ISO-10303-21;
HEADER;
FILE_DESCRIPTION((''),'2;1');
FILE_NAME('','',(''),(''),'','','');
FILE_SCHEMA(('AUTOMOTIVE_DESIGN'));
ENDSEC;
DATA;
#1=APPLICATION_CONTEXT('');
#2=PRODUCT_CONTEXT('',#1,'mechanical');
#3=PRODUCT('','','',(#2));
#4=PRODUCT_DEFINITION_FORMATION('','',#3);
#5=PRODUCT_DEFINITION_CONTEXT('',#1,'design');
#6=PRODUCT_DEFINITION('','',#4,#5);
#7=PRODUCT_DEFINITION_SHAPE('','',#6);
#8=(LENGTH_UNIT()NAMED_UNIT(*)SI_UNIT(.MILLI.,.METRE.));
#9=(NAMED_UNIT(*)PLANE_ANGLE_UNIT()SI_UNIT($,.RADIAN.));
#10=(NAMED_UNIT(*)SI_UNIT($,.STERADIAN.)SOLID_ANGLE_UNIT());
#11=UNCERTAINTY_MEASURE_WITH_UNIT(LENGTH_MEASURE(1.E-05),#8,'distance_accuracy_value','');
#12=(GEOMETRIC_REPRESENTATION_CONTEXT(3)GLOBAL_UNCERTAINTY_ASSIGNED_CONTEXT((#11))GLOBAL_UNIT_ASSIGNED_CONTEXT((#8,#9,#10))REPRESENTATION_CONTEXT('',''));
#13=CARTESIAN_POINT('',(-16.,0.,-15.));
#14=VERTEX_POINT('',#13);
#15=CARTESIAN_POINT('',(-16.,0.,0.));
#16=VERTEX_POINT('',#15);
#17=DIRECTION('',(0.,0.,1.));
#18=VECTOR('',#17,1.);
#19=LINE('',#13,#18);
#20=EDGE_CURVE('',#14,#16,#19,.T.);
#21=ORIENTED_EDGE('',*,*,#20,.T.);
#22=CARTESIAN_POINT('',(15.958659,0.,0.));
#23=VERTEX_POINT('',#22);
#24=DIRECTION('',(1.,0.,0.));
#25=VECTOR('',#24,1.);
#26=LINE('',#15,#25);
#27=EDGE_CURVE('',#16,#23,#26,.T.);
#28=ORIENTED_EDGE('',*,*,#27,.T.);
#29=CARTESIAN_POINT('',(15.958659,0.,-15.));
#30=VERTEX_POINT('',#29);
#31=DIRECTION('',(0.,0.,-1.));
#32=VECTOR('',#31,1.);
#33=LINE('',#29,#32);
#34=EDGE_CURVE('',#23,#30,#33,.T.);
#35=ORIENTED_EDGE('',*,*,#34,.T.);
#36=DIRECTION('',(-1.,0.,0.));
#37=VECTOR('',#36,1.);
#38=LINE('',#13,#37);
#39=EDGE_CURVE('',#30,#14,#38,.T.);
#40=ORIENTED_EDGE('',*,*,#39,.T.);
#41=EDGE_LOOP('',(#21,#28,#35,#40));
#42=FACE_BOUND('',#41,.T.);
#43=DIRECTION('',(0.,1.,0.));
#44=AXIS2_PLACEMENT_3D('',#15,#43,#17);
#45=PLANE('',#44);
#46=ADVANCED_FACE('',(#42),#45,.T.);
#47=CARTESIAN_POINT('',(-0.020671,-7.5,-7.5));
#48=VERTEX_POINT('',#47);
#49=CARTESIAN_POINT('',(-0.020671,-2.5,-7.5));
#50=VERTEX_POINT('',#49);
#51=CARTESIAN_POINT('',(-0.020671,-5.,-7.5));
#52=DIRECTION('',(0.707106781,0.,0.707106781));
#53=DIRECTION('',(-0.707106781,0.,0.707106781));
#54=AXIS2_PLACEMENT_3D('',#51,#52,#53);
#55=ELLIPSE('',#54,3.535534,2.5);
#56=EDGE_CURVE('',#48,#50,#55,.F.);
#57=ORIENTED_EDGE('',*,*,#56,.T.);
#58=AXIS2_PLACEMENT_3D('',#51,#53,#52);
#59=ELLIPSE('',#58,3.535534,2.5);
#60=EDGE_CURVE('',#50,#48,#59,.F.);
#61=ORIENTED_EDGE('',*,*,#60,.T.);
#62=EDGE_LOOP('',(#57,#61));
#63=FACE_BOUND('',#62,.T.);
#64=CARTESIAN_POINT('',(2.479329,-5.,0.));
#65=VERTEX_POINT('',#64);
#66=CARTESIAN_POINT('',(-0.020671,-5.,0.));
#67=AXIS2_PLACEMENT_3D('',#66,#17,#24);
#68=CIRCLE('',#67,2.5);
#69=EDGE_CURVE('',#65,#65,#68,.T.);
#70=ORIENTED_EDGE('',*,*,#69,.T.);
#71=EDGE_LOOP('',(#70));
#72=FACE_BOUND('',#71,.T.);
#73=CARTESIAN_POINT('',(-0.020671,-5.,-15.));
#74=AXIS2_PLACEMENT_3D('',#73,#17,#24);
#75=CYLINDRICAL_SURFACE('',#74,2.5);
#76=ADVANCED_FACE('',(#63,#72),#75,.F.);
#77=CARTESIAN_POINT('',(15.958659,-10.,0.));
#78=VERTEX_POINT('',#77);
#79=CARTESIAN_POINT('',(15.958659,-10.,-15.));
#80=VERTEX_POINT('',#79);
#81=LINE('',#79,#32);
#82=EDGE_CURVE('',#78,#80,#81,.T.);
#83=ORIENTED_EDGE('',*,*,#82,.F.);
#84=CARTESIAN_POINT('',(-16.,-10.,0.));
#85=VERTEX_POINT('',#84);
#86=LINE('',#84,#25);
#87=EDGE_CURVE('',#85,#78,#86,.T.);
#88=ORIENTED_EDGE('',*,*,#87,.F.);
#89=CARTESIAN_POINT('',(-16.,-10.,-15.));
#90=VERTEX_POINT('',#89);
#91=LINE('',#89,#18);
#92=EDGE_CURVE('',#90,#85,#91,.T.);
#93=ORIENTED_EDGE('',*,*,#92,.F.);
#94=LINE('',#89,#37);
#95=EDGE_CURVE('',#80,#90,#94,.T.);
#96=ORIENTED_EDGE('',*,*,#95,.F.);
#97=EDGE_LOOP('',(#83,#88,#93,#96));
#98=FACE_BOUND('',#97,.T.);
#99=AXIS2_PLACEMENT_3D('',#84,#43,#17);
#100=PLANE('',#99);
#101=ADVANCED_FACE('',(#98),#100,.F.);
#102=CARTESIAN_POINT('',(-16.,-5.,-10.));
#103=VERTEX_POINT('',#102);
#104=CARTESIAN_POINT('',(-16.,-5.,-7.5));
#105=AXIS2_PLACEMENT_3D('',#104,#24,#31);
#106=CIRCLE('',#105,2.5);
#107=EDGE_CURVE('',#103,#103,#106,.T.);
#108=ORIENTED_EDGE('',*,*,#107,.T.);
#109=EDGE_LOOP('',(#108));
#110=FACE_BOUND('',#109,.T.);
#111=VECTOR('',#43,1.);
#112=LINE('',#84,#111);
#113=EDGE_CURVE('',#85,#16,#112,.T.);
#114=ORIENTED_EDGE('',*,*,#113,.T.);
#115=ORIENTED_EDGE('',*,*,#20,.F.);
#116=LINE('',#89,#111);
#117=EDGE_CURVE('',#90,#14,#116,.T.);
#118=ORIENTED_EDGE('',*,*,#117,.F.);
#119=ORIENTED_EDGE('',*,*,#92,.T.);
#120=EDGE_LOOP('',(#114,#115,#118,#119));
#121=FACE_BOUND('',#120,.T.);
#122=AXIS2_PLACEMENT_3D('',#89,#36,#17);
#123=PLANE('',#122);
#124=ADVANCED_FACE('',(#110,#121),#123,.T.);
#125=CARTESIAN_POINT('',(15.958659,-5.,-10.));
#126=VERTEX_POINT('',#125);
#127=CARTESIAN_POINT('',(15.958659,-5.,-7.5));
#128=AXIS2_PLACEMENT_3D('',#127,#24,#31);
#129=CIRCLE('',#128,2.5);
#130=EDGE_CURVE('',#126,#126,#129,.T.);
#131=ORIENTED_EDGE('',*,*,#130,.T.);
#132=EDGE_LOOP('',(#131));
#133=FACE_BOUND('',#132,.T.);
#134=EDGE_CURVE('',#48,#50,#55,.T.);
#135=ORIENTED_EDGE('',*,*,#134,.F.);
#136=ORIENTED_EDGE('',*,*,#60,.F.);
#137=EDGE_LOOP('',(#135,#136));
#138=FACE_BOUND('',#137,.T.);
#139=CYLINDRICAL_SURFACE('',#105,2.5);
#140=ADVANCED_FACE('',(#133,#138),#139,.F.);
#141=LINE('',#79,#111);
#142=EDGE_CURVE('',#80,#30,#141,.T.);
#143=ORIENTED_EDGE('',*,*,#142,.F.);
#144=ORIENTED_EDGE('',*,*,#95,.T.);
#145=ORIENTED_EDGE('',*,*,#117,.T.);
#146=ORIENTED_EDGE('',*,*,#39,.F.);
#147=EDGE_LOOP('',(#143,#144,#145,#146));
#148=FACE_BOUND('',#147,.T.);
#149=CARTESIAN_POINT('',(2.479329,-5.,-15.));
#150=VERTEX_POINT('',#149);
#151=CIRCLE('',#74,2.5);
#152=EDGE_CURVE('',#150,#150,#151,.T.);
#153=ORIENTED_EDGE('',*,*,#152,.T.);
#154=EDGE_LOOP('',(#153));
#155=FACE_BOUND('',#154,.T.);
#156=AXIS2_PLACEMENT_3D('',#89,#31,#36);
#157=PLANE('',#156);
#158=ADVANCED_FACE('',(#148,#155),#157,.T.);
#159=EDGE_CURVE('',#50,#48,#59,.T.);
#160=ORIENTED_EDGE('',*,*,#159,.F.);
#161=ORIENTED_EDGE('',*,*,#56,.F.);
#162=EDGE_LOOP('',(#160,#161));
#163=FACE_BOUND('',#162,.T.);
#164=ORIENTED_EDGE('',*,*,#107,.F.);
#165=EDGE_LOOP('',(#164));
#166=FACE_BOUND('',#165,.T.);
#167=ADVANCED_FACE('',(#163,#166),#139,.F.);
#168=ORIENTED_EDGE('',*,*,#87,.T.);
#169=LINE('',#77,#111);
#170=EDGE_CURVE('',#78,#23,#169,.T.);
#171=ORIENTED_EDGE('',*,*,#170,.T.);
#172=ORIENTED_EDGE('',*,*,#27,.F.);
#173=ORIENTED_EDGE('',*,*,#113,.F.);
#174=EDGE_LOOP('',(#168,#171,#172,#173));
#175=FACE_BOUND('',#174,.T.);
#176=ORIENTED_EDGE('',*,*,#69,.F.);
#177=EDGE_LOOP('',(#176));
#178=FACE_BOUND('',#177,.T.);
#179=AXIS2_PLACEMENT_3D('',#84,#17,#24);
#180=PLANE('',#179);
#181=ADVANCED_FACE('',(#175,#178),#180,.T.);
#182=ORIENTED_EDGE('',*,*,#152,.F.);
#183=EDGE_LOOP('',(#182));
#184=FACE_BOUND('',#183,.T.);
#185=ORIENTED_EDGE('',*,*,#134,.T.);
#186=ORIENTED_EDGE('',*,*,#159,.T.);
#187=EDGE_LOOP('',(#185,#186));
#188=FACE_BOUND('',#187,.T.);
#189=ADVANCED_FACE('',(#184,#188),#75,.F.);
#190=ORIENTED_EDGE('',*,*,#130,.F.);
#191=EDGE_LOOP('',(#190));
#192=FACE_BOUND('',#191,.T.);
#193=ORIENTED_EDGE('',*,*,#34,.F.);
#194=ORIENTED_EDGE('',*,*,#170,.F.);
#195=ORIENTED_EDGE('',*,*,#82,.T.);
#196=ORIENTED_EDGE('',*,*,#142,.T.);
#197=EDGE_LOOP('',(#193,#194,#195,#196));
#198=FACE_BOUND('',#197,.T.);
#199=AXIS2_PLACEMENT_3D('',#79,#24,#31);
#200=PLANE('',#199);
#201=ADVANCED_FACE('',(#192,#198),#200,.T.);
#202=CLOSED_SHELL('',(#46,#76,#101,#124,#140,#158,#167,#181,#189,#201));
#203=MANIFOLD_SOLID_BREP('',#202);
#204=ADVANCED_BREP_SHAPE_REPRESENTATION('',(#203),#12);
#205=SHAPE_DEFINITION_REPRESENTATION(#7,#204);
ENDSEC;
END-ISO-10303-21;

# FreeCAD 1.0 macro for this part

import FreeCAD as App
import Part
import Sketcher


def add_polygon(sketch, points):
    """Adds a closed chain of lines whose ends are joined by coincident constraints."""
    first, n = sketch.GeometryCount, len(points)
    for a, b in zip(points, points[1:] + points[:1]):
        sketch.addGeometry(Part.LineSegment(App.Vector(*a, 0), App.Vector(*b, 0)), False)
    for i in range(n):
        sketch.addConstraint(Sketcher.Constraint("Coincident", first + i, 2, first + (i + 1) % n, 1))

doc = App.newDocument("Part")
body = doc.addObject("PartDesign::Body", "Body")

# Sketch on XZ plane
sketch1 = doc.addObject("Sketcher::SketchObject", "Sketch")
body.addObject(sketch1)
sketch1.AttachmentSupport = (doc.XZ_Plane, [""])
sketch1.MapMode = "FlatFace"
add_polygon(sketch1, [(-16, -15), (-16, 0), (15.958659, 0), (15.958659, -15)])  # lines 0-3
sketch1.addConstraint([
    Sketcher.Constraint("Vertical", 0),
    Sketcher.Constraint("Horizontal", 1),
    Sketcher.Constraint("Vertical", 2),
    Sketcher.Constraint("Horizontal", 3),
    Sketcher.Constraint("PointOnObject", 0, 2, -1),
    Sketcher.Constraint("DistanceY", 0, 1, 0, 2, 15.0),
    Sketcher.Constraint("DistanceX", 0, 2, -1, 1, 16.0),
    Sketcher.Constraint("DistanceX", 1, 1, 1, 2, 31.958659),
])
pad1 = doc.addObject("PartDesign::Pad", "Pad")
body.addObject(pad1)
pad1.Profile = sketch1
pad1.Length = 10

# Sketch on XY plane
sketch2 = doc.addObject("Sketcher::SketchObject", "Sketch001")
body.addObject(sketch2)
sketch2.AttachmentSupport = (doc.XY_Plane, [""])
sketch2.MapMode = "FlatFace"
sketch2.addGeometry(Part.Circle(App.Vector(-0.020671, -5, 0), App.Vector(0, 0, 1), 2.5), False)
sketch2.addConstraint([
    Sketcher.Constraint("Diameter", 0, 5.0),
    Sketcher.Constraint("DistanceY", 0, 3, -1, 1, 5.0),
    Sketcher.Constraint("DistanceX", 0, 3, -1, 1, 0.020671),
])
pocket1 = doc.addObject("PartDesign::Pocket", "Pocket")
body.addObject(pocket1)
pocket1.Profile = sketch2
pocket1.Type = "ThroughAll"

# Sketch on YZ plane
sketch3 = doc.addObject("Sketcher::SketchObject", "Sketch002")
body.addObject(sketch3)
sketch3.AttachmentSupport = (doc.YZ_Plane, [""])
sketch3.MapMode = "FlatFace"
sketch3.AttachmentOffset = App.Placement(App.Vector(0, 0, 15.958659), App.Rotation())
sketch3.addGeometry(Part.Circle(App.Vector(-5, -7.5, 0), App.Vector(0, 0, 1), 2.5), False)
sketch3.addConstraint([
    Sketcher.Constraint("Diameter", 0, 5.0),
    Sketcher.Constraint("DistanceX", 0, 3, -1, 1, 5.0),
    Sketcher.Constraint("DistanceY", 0, 3, -1, 1, 7.5),
])
pocket2 = doc.addObject("PartDesign::Pocket", "Pocket001")
body.addObject(pocket2)
pocket2.Profile = sketch3
pocket2.Type = "ThroughAll"

doc.recompute()
